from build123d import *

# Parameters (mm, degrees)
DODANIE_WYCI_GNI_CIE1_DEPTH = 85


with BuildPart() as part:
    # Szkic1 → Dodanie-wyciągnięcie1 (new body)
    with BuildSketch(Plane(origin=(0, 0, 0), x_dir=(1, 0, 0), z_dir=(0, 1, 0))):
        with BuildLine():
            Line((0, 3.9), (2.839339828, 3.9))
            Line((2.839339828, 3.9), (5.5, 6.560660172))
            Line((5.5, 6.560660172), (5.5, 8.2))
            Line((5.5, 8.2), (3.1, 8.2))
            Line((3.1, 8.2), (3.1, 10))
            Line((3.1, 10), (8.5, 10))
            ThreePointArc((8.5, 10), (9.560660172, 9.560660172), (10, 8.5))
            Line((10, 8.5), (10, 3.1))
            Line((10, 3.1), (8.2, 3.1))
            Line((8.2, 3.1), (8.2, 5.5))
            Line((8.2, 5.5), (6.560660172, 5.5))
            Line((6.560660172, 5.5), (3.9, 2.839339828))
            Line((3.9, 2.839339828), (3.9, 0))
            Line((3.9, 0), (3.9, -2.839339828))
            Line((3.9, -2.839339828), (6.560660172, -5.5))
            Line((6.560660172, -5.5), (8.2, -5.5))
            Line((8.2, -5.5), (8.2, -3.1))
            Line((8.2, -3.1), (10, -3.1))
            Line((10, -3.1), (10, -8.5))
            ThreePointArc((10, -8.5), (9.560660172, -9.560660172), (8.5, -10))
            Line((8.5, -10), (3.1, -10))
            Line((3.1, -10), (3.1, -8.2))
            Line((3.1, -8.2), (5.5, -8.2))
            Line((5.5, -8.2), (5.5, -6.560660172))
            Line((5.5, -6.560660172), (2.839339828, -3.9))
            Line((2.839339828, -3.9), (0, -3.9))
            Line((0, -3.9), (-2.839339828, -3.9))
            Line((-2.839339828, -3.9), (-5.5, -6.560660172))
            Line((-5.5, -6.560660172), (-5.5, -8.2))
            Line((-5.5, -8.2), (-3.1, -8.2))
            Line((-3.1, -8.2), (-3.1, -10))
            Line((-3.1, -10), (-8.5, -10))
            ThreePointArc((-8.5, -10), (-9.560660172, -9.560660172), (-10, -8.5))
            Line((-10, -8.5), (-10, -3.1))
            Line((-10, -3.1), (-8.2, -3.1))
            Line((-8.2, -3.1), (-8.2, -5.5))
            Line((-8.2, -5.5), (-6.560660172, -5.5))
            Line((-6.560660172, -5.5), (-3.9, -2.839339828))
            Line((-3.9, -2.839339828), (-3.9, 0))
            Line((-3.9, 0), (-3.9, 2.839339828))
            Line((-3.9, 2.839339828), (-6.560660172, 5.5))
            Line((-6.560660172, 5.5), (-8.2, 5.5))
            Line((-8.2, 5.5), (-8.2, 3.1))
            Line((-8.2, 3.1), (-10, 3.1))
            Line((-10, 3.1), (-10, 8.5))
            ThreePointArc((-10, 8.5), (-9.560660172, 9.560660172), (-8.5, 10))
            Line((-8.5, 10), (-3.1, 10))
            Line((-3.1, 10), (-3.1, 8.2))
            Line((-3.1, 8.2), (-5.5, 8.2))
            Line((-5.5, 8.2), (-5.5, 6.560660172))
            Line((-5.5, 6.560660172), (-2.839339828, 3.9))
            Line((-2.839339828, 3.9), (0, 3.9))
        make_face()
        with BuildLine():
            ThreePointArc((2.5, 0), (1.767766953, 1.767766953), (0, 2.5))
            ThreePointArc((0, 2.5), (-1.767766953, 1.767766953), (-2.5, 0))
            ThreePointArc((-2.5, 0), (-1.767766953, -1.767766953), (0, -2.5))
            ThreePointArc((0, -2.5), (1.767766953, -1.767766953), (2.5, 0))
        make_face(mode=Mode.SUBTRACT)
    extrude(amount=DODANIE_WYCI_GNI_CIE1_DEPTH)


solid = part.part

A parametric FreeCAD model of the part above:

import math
import FreeCAD as App
import Part
import Sketcher

V = App.Vector
Q = App.Units.Quantity

doc = App.newDocument("Part")
params = doc.addObject("Spreadsheet::Sheet", "Params")
for row, (alias, value) in enumerate([
    ("sketch1_radius", "1.5 mm"),
    ("sketch1_radius2", "2.5 mm"),
    ("sketch1_width", "2.4 mm"),
    ("sketch1_width2", "5.4 mm"),
    ("sketch1_width3", "1.8 mm"),
    ("pad1_length", "85 mm"),
], start=1):
    params.set(f"A{row}", alias)
    params.set(f"B{row}", "=" + value)
    params.setAlias(f"B{row}", alias)

body = doc.addObject("PartDesign::Body", "Body")

sketch1 = body.newObject("Sketcher::SketchObject", "Sketch")
sketch1.AttachmentSupport = (doc.getObject("XZ_Plane"), [""])
sketch1.MapMode = "FlatFace"
sketch1.addGeometry([
    Part.LineSegment(V(5.5, -6.6, 0), V(2.8, -3.9, 0)),
    Part.LineSegment(V(2.8, -3.9, 0), V(-2.8, -3.9, 0)),
    Part.LineSegment(V(-2.8, -3.9, 0), V(-5.5, -6.6, 0)),
    Part.LineSegment(V(-5.5, -6.6, 0), V(-5.5, -8.2, 0)),
    Part.LineSegment(V(-5.5, -8.2, 0), V(-3.1, -8.2, 0)),
    Part.LineSegment(V(-3.1, -8.2, 0), V(-3.1, -10, 0)),
    Part.LineSegment(V(-3.1, -10, 0), V(-8.5, -10, 0)),
    Part.ArcOfCircle(Part.Circle(V(-8.5, -8.5, 0), V(0, 0, 1), 1.5), math.radians(180), math.radians(270)),
    Part.LineSegment(V(-10, -8.5, 0), V(-10, -3.1, 0)),
    Part.LineSegment(V(-10, -3.1, 0), V(-8.2, -3.1, 0)),
    Part.LineSegment(V(-8.2, -3.1, 0), V(-8.2, -5.5, 0)),
    Part.LineSegment(V(-8.2, -5.5, 0), V(-6.6, -5.5, 0)),
    Part.LineSegment(V(-6.6, -5.5, 0), V(-3.9, -2.8, 0)),
    Part.LineSegment(V(-3.9, -2.8, 0), V(-3.9, 2.8, 0)),
    Part.LineSegment(V(-3.9, 2.8, 0), V(-6.6, 5.5, 0)),
    Part.LineSegment(V(-6.6, 5.5, 0), V(-8.2, 5.5, 0)),
    Part.LineSegment(V(-8.2, 5.5, 0), V(-8.2, 3.1, 0)),
    Part.LineSegment(V(-8.2, 3.1, 0), V(-10, 3.1, 0)),
    Part.LineSegment(V(-10, 3.1, 0), V(-10, 8.5, 0)),
    Part.ArcOfCircle(Part.Circle(V(-8.5, 8.5, 0), V(0, 0, 1), 1.5), math.radians(90), math.radians(180)),
    Part.LineSegment(V(-8.5, 10, 0), V(-3.1, 10, 0)),
    Part.LineSegment(V(-3.1, 10, 0), V(-3.1, 8.2, 0)),
    Part.LineSegment(V(-3.1, 8.2, 0), V(-5.5, 8.2, 0)),
    Part.LineSegment(V(-5.5, 8.2, 0), V(-5.5, 6.6, 0)),
    Part.LineSegment(V(-5.5, 6.6, 0), V(-2.8, 3.9, 0)),
    Part.LineSegment(V(-2.8, 3.9, 0), V(2.8, 3.9, 0)),
    Part.LineSegment(V(2.8, 3.9, 0), V(5.5, 6.6, 0)),
    Part.LineSegment(V(5.5, 6.6, 0), V(5.5, 8.2, 0)),
    Part.LineSegment(V(5.5, 8.2, 0), V(3.1, 8.2, 0)),
    Part.LineSegment(V(3.1, 8.2, 0), V(3.1, 10, 0)),
    Part.LineSegment(V(3.1, 10, 0), V(8.5, 10, 0)),
    Part.ArcOfCircle(Part.Circle(V(8.5, 8.5, 0), V(0, 0, 1), 1.5), math.radians(0), math.radians(90)),
    Part.LineSegment(V(10, 8.5, 0), V(10, 3.1, 0)),
    Part.LineSegment(V(10, 3.1, 0), V(8.2, 3.1, 0)),
    Part.LineSegment(V(8.2, 3.1, 0), V(8.2, 5.5, 0)),
    Part.LineSegment(V(8.2, 5.5, 0), V(6.6, 5.5, 0)),
    Part.LineSegment(V(6.6, 5.5, 0), V(3.9, 2.8, 0)),
    Part.LineSegment(V(3.9, 2.8, 0), V(3.9, -2.8, 0)),
    Part.LineSegment(V(3.9, -2.8, 0), V(6.6, -5.5, 0)),
    Part.LineSegment(V(6.6, -5.5, 0), V(8.2, -5.5, 0)),
    Part.LineSegment(V(8.2, -5.5, 0), V(8.2, -3.1, 0)),
    Part.LineSegment(V(8.2, -3.1, 0), V(10, -3.1, 0)),
    Part.LineSegment(V(10, -3.1, 0), V(10, -8.5, 0)),
    Part.ArcOfCircle(Part.Circle(V(8.5, -8.5, 0), V(0, 0, 1), 1.5), math.radians(-90), math.radians(0)),
    Part.LineSegment(V(8.5, -10, 0), V(3.1, -10, 0)),
    Part.LineSegment(V(3.1, -10, 0), V(3.1, -8.2, 0)),
    Part.LineSegment(V(3.1, -8.2, 0), V(5.5, -8.2, 0)),
    Part.LineSegment(V(5.5, -8.2, 0), V(5.5, -6.6, 0)),
    Part.ArcOfCircle(Part.Circle(V(0, 0, 0), V(0, 0, 1), 2.5), math.radians(0), math.radians(90)),
    Part.ArcOfCircle(Part.Circle(V(0, 0, 0), V(0, 0, 1), 2.5), math.radians(90), math.radians(180)),
    Part.ArcOfCircle(Part.Circle(V(0, 0, 0), V(0, 0, 1), 2.5), math.radians(180), math.radians(270)),
    Part.ArcOfCircle(Part.Circle(V(0, 0, 0), V(0, 0, 1), 2.5), math.radians(-90), math.radians(0)),
], False)
sketch1.addConstraint([
    Sketcher.Constraint("Coincident", 0, 2, 1, 1),
    Sketcher.Constraint("Coincident", 1, 2, 2, 1),
    Sketcher.Constraint("Coincident", 2, 2, 3, 1),
    Sketcher.Constraint("Coincident", 3, 2, 4, 1),
    Sketcher.Constraint("Coincident", 4, 2, 5, 1),
    Sketcher.Constraint("Coincident", 5, 2, 6, 1),
    Sketcher.Constraint("Tangent", 6, 2, 7, 2),
    Sketcher.Constraint("Tangent", 7, 1, 8, 1),
    Sketcher.Constraint("Coincident", 8, 2, 9, 1),
    Sketcher.Constraint("Coincident", 9, 2, 10, 1),
    Sketcher.Constraint("Coincident", 10, 2, 11, 1),
    Sketcher.Constraint("Coincident", 11, 2, 12, 1),
    Sketcher.Constraint("Coincident", 12, 2, 13, 1),
    Sketcher.Constraint("Coincident", 13, 2, 14, 1),
    Sketcher.Constraint("Coincident", 14, 2, 15, 1),
    Sketcher.Constraint("Coincident", 15, 2, 16, 1),
    Sketcher.Constraint("Coincident", 16, 2, 17, 1),
    Sketcher.Constraint("Coincident", 17, 2, 18, 1),
    Sketcher.Constraint("Tangent", 18, 2, 19, 2),
    Sketcher.Constraint("Tangent", 19, 1, 20, 1),
    Sketcher.Constraint("Coincident", 20, 2, 21, 1),
    Sketcher.Constraint("Coincident", 21, 2, 22, 1),
    Sketcher.Constraint("Coincident", 22, 2, 23, 1),
    Sketcher.Constraint("Coincident", 23, 2, 24, 1),
    Sketcher.Constraint("Coincident", 24, 2, 25, 1),
    Sketcher.Constraint("Coincident", 25, 2, 26, 1),
    Sketcher.Constraint("Coincident", 26, 2, 27, 1),
    Sketcher.Constraint("Coincident", 27, 2, 28, 1),
    Sketcher.Constraint("Coincident", 28, 2, 29, 1),
    Sketcher.Constraint("Coincident", 29, 2, 30, 1),
    Sketcher.Constraint("Tangent", 30, 2, 31, 2),
    Sketcher.Constraint("Tangent", 31, 1, 32, 1),
    Sketcher.Constraint("Coincident", 32, 2, 33, 1),
    Sketcher.Constraint("Coincident", 33, 2, 34, 1),
    Sketcher.Constraint("Coincident", 34, 2, 35, 1),
    Sketcher.Constraint("Coincident", 35, 2, 36, 1),
    Sketcher.Constraint("Coincident", 36, 2, 37, 1),
    Sketcher.Constraint("Coincident", 37, 2, 38, 1),
    Sketcher.Constraint("Coincident", 38, 2, 39, 1),
    Sketcher.Constraint("Coincident", 39, 2, 40, 1),
    Sketcher.Constraint("Coincident", 40, 2, 41, 1),
    Sketcher.Constraint("Coincident", 41, 2, 42, 1),
    Sketcher.Constraint("Tangent", 42, 2, 43, 2),
    Sketcher.Constraint("Tangent", 43, 1, 44, 1),
    Sketcher.Constraint("Coincident", 44, 2, 45, 1),
    Sketcher.Constraint("Coincident", 45, 2, 46, 1),
    Sketcher.Constraint("Coincident", 46, 2, 47, 1),
    Sketcher.Constraint("Coincident", 47, 2, 0, 1),
    Sketcher.Constraint("Tangent", 48, 2, 49, 1),
    Sketcher.Constraint("Tangent", 49, 2, 50, 1),
    Sketcher.Constraint("Tangent", 50, 2, 51, 1),
    Sketcher.Constraint("Tangent", 51, 2, 48, 1),
    Sketcher.Constraint("Horizontal", 1),
    Sketcher.Constraint("Vertical", 3),
    Sketcher.Constraint("Horizontal", 4),
    Sketcher.Constraint("Vertical", 5),
    Sketcher.Constraint("Horizontal", 6),
    Sketcher.Constraint("Vertical", 8),
    Sketcher.Constraint("Horizontal", 9),
    Sketcher.Constraint("Vertical", 10),
    Sketcher.Constraint("Horizontal", 11),
    Sketcher.Constraint("Vertical", 13),
    Sketcher.Constraint("Horizontal", 15),
    Sketcher.Constraint("Vertical", 16),
    Sketcher.Constraint("Horizontal", 17),
    Sketcher.Constraint("Vertical", 18),
    Sketcher.Constraint("Horizontal", 20),
    Sketcher.Constraint("Vertical", 21),
    Sketcher.Constraint("Horizontal", 22),
    Sketcher.Constraint("Vertical", 23),
    Sketcher.Constraint("Horizontal", 25),
    Sketcher.Constraint("Vertical", 27),
    Sketcher.Constraint("Horizontal", 28),
    Sketcher.Constraint("Vertical", 29),
    Sketcher.Constraint("Horizontal", 30),
    Sketcher.Constraint("Vertical", 32),
    Sketcher.Constraint("Horizontal", 33),
    Sketcher.Constraint("Vertical", 34),
    Sketcher.Constraint("Horizontal", 35),
    Sketcher.Constraint("Vertical", 37),
    Sketcher.Constraint("Horizontal", 39),
    Sketcher.Constraint("Vertical", 40),
    Sketcher.Constraint("Horizontal", 41),
    Sketcher.Constraint("Vertical", 42),
    Sketcher.Constraint("Horizontal", 44),
    Sketcher.Constraint("Vertical", 45),
    Sketcher.Constraint("Horizontal", 46),
    Sketcher.Constraint("Vertical", 47),
    Sketcher.Constraint("Coincident", 48, 3, -1, 1),
    Sketcher.Constraint("Equal", 7, 19),
    Sketcher.Constraint("Equal", 19, 31),
    Sketcher.Constraint("Equal", 31, 43),
    Sketcher.Constraint("Equal", 48, 49),
    Sketcher.Constraint("Symmetric", 7, 3, 31, 3, -1, 1),
    Sketcher.Constraint("Symmetric", 19, 3, 43, 3, -1, 1),
    Sketcher.Constraint("Symmetric", 0, 2, 24, 2, -1, 1),
    Sketcher.Constraint("Symmetric", 2, 2, 26, 2, -1, 1),
    Sketcher.Constraint("Symmetric", 4, 2, 28, 2, -1, 1),
    Sketcher.Constraint("Symmetric", 9, 2, 33, 2, -1, 1),
    Sketcher.Constraint("Symmetric", 11, 2, 35, 2, -1, 1),
    Sketcher.Constraint("Symmetric", 12, 2, 36, 2, -1, 1),
    Sketcher.Constraint("Symmetric", 14, 2, 38, 2, -1, 1),
    Sketcher.Constraint("Symmetric", 16, 2, 40, 2, -1, 1),
    Sketcher.Constraint("Symmetric", 21, 2, 45, 2, -1, 1),
    Sketcher.Constraint("Symmetric", 23, 2, 47, 2, -1, 1),
    Sketcher.Constraint("Symmetric", 19, 3, 31, 3, -2),
    Sketcher.Constraint("Symmetric", 23, 2, 26, 2, -2),
    Sketcher.Constraint("Symmetric", 21, 2, 28, 2, -2),
    Sketcher.Constraint("Symmetric", 16, 2, 33, 2, -2),
    Sketcher.Constraint("Symmetric", 14, 2, 35, 2, -2),
    Sketcher.Constraint("PointOnObject", 48, 2, -2),
    Sketcher.Constraint("PointOnObject", 49, 2, -1),
    Sketcher.Constraint("PointOnObject", 50, 2, -2),
    Sketcher.Constraint("PointOnObject", 51, 2, -1),
    Sketcher.Constraint("Perpendicular", 0, 2),
    Sketcher.Constraint("Parallel", 2, 12),
    Sketcher.Constraint("Perpendicular", 12, 14),
    Sketcher.Constraint("Perpendicular", 24, 26),
    Sketcher.Constraint("Perpendicular", 36, 38),
    Sketcher.Constraint("Horizontal", 13, 2, 36, 2),
    Sketcher.Constraint("Equal", 39, 3),
    Sketcher.Constraint("Equal", 41, 5),
    Sketcher.Constraint("Equal", 44, 8),
    Sketcher.Constraint("Equal", 46, 10),
    Sketcher.Constraint("Equal", 25, 13),
    Sketcher.Constraint("Equal", 2, 12),
    Sketcher.Constraint("Radius", 7, Q("1.5 mm")),
    Sketcher.Constraint("Radius", 48, Q("2.5 mm")),
    Sketcher.Constraint("DistanceX", 4, 1, 4, 2, Q("2.4 mm")),
    Sketcher.Constraint("DistanceX", 6, 2, 6, 1, Q("5.4 mm")),
    Sketcher.Constraint("DistanceX", 9, 1, 9, 2, Q("1.8 mm")),
    Sketcher.Constraint("DistanceY", 5, 2, -1, 1, Q("10 mm")),
    Sketcher.Constraint("DistanceY", 0, 2, -1, 1, Q("3.9 mm")),
    Sketcher.Constraint("DistanceX", 1, 2, 1, 1, Q("5.67868 mm")),
])
sketch1.setExpression("Constraints[126]", "Params.sketch1_radius")
sketch1.setExpression("Constraints[127]", "Params.sketch1_radius2")
sketch1.setExpression("Constraints[128]", "Params.sketch1_width")
sketch1.setExpression("Constraints[129]", "Params.sketch1_width2")
sketch1.setExpression("Constraints[130]", "Params.sketch1_width3")
pad1 = body.newObject("PartDesign::Pad", "Pad")
pad1.Profile = sketch1
pad1.setExpression("Length", "Params.pad1_length")
pad1.Reversed = True

doc.recompute()
